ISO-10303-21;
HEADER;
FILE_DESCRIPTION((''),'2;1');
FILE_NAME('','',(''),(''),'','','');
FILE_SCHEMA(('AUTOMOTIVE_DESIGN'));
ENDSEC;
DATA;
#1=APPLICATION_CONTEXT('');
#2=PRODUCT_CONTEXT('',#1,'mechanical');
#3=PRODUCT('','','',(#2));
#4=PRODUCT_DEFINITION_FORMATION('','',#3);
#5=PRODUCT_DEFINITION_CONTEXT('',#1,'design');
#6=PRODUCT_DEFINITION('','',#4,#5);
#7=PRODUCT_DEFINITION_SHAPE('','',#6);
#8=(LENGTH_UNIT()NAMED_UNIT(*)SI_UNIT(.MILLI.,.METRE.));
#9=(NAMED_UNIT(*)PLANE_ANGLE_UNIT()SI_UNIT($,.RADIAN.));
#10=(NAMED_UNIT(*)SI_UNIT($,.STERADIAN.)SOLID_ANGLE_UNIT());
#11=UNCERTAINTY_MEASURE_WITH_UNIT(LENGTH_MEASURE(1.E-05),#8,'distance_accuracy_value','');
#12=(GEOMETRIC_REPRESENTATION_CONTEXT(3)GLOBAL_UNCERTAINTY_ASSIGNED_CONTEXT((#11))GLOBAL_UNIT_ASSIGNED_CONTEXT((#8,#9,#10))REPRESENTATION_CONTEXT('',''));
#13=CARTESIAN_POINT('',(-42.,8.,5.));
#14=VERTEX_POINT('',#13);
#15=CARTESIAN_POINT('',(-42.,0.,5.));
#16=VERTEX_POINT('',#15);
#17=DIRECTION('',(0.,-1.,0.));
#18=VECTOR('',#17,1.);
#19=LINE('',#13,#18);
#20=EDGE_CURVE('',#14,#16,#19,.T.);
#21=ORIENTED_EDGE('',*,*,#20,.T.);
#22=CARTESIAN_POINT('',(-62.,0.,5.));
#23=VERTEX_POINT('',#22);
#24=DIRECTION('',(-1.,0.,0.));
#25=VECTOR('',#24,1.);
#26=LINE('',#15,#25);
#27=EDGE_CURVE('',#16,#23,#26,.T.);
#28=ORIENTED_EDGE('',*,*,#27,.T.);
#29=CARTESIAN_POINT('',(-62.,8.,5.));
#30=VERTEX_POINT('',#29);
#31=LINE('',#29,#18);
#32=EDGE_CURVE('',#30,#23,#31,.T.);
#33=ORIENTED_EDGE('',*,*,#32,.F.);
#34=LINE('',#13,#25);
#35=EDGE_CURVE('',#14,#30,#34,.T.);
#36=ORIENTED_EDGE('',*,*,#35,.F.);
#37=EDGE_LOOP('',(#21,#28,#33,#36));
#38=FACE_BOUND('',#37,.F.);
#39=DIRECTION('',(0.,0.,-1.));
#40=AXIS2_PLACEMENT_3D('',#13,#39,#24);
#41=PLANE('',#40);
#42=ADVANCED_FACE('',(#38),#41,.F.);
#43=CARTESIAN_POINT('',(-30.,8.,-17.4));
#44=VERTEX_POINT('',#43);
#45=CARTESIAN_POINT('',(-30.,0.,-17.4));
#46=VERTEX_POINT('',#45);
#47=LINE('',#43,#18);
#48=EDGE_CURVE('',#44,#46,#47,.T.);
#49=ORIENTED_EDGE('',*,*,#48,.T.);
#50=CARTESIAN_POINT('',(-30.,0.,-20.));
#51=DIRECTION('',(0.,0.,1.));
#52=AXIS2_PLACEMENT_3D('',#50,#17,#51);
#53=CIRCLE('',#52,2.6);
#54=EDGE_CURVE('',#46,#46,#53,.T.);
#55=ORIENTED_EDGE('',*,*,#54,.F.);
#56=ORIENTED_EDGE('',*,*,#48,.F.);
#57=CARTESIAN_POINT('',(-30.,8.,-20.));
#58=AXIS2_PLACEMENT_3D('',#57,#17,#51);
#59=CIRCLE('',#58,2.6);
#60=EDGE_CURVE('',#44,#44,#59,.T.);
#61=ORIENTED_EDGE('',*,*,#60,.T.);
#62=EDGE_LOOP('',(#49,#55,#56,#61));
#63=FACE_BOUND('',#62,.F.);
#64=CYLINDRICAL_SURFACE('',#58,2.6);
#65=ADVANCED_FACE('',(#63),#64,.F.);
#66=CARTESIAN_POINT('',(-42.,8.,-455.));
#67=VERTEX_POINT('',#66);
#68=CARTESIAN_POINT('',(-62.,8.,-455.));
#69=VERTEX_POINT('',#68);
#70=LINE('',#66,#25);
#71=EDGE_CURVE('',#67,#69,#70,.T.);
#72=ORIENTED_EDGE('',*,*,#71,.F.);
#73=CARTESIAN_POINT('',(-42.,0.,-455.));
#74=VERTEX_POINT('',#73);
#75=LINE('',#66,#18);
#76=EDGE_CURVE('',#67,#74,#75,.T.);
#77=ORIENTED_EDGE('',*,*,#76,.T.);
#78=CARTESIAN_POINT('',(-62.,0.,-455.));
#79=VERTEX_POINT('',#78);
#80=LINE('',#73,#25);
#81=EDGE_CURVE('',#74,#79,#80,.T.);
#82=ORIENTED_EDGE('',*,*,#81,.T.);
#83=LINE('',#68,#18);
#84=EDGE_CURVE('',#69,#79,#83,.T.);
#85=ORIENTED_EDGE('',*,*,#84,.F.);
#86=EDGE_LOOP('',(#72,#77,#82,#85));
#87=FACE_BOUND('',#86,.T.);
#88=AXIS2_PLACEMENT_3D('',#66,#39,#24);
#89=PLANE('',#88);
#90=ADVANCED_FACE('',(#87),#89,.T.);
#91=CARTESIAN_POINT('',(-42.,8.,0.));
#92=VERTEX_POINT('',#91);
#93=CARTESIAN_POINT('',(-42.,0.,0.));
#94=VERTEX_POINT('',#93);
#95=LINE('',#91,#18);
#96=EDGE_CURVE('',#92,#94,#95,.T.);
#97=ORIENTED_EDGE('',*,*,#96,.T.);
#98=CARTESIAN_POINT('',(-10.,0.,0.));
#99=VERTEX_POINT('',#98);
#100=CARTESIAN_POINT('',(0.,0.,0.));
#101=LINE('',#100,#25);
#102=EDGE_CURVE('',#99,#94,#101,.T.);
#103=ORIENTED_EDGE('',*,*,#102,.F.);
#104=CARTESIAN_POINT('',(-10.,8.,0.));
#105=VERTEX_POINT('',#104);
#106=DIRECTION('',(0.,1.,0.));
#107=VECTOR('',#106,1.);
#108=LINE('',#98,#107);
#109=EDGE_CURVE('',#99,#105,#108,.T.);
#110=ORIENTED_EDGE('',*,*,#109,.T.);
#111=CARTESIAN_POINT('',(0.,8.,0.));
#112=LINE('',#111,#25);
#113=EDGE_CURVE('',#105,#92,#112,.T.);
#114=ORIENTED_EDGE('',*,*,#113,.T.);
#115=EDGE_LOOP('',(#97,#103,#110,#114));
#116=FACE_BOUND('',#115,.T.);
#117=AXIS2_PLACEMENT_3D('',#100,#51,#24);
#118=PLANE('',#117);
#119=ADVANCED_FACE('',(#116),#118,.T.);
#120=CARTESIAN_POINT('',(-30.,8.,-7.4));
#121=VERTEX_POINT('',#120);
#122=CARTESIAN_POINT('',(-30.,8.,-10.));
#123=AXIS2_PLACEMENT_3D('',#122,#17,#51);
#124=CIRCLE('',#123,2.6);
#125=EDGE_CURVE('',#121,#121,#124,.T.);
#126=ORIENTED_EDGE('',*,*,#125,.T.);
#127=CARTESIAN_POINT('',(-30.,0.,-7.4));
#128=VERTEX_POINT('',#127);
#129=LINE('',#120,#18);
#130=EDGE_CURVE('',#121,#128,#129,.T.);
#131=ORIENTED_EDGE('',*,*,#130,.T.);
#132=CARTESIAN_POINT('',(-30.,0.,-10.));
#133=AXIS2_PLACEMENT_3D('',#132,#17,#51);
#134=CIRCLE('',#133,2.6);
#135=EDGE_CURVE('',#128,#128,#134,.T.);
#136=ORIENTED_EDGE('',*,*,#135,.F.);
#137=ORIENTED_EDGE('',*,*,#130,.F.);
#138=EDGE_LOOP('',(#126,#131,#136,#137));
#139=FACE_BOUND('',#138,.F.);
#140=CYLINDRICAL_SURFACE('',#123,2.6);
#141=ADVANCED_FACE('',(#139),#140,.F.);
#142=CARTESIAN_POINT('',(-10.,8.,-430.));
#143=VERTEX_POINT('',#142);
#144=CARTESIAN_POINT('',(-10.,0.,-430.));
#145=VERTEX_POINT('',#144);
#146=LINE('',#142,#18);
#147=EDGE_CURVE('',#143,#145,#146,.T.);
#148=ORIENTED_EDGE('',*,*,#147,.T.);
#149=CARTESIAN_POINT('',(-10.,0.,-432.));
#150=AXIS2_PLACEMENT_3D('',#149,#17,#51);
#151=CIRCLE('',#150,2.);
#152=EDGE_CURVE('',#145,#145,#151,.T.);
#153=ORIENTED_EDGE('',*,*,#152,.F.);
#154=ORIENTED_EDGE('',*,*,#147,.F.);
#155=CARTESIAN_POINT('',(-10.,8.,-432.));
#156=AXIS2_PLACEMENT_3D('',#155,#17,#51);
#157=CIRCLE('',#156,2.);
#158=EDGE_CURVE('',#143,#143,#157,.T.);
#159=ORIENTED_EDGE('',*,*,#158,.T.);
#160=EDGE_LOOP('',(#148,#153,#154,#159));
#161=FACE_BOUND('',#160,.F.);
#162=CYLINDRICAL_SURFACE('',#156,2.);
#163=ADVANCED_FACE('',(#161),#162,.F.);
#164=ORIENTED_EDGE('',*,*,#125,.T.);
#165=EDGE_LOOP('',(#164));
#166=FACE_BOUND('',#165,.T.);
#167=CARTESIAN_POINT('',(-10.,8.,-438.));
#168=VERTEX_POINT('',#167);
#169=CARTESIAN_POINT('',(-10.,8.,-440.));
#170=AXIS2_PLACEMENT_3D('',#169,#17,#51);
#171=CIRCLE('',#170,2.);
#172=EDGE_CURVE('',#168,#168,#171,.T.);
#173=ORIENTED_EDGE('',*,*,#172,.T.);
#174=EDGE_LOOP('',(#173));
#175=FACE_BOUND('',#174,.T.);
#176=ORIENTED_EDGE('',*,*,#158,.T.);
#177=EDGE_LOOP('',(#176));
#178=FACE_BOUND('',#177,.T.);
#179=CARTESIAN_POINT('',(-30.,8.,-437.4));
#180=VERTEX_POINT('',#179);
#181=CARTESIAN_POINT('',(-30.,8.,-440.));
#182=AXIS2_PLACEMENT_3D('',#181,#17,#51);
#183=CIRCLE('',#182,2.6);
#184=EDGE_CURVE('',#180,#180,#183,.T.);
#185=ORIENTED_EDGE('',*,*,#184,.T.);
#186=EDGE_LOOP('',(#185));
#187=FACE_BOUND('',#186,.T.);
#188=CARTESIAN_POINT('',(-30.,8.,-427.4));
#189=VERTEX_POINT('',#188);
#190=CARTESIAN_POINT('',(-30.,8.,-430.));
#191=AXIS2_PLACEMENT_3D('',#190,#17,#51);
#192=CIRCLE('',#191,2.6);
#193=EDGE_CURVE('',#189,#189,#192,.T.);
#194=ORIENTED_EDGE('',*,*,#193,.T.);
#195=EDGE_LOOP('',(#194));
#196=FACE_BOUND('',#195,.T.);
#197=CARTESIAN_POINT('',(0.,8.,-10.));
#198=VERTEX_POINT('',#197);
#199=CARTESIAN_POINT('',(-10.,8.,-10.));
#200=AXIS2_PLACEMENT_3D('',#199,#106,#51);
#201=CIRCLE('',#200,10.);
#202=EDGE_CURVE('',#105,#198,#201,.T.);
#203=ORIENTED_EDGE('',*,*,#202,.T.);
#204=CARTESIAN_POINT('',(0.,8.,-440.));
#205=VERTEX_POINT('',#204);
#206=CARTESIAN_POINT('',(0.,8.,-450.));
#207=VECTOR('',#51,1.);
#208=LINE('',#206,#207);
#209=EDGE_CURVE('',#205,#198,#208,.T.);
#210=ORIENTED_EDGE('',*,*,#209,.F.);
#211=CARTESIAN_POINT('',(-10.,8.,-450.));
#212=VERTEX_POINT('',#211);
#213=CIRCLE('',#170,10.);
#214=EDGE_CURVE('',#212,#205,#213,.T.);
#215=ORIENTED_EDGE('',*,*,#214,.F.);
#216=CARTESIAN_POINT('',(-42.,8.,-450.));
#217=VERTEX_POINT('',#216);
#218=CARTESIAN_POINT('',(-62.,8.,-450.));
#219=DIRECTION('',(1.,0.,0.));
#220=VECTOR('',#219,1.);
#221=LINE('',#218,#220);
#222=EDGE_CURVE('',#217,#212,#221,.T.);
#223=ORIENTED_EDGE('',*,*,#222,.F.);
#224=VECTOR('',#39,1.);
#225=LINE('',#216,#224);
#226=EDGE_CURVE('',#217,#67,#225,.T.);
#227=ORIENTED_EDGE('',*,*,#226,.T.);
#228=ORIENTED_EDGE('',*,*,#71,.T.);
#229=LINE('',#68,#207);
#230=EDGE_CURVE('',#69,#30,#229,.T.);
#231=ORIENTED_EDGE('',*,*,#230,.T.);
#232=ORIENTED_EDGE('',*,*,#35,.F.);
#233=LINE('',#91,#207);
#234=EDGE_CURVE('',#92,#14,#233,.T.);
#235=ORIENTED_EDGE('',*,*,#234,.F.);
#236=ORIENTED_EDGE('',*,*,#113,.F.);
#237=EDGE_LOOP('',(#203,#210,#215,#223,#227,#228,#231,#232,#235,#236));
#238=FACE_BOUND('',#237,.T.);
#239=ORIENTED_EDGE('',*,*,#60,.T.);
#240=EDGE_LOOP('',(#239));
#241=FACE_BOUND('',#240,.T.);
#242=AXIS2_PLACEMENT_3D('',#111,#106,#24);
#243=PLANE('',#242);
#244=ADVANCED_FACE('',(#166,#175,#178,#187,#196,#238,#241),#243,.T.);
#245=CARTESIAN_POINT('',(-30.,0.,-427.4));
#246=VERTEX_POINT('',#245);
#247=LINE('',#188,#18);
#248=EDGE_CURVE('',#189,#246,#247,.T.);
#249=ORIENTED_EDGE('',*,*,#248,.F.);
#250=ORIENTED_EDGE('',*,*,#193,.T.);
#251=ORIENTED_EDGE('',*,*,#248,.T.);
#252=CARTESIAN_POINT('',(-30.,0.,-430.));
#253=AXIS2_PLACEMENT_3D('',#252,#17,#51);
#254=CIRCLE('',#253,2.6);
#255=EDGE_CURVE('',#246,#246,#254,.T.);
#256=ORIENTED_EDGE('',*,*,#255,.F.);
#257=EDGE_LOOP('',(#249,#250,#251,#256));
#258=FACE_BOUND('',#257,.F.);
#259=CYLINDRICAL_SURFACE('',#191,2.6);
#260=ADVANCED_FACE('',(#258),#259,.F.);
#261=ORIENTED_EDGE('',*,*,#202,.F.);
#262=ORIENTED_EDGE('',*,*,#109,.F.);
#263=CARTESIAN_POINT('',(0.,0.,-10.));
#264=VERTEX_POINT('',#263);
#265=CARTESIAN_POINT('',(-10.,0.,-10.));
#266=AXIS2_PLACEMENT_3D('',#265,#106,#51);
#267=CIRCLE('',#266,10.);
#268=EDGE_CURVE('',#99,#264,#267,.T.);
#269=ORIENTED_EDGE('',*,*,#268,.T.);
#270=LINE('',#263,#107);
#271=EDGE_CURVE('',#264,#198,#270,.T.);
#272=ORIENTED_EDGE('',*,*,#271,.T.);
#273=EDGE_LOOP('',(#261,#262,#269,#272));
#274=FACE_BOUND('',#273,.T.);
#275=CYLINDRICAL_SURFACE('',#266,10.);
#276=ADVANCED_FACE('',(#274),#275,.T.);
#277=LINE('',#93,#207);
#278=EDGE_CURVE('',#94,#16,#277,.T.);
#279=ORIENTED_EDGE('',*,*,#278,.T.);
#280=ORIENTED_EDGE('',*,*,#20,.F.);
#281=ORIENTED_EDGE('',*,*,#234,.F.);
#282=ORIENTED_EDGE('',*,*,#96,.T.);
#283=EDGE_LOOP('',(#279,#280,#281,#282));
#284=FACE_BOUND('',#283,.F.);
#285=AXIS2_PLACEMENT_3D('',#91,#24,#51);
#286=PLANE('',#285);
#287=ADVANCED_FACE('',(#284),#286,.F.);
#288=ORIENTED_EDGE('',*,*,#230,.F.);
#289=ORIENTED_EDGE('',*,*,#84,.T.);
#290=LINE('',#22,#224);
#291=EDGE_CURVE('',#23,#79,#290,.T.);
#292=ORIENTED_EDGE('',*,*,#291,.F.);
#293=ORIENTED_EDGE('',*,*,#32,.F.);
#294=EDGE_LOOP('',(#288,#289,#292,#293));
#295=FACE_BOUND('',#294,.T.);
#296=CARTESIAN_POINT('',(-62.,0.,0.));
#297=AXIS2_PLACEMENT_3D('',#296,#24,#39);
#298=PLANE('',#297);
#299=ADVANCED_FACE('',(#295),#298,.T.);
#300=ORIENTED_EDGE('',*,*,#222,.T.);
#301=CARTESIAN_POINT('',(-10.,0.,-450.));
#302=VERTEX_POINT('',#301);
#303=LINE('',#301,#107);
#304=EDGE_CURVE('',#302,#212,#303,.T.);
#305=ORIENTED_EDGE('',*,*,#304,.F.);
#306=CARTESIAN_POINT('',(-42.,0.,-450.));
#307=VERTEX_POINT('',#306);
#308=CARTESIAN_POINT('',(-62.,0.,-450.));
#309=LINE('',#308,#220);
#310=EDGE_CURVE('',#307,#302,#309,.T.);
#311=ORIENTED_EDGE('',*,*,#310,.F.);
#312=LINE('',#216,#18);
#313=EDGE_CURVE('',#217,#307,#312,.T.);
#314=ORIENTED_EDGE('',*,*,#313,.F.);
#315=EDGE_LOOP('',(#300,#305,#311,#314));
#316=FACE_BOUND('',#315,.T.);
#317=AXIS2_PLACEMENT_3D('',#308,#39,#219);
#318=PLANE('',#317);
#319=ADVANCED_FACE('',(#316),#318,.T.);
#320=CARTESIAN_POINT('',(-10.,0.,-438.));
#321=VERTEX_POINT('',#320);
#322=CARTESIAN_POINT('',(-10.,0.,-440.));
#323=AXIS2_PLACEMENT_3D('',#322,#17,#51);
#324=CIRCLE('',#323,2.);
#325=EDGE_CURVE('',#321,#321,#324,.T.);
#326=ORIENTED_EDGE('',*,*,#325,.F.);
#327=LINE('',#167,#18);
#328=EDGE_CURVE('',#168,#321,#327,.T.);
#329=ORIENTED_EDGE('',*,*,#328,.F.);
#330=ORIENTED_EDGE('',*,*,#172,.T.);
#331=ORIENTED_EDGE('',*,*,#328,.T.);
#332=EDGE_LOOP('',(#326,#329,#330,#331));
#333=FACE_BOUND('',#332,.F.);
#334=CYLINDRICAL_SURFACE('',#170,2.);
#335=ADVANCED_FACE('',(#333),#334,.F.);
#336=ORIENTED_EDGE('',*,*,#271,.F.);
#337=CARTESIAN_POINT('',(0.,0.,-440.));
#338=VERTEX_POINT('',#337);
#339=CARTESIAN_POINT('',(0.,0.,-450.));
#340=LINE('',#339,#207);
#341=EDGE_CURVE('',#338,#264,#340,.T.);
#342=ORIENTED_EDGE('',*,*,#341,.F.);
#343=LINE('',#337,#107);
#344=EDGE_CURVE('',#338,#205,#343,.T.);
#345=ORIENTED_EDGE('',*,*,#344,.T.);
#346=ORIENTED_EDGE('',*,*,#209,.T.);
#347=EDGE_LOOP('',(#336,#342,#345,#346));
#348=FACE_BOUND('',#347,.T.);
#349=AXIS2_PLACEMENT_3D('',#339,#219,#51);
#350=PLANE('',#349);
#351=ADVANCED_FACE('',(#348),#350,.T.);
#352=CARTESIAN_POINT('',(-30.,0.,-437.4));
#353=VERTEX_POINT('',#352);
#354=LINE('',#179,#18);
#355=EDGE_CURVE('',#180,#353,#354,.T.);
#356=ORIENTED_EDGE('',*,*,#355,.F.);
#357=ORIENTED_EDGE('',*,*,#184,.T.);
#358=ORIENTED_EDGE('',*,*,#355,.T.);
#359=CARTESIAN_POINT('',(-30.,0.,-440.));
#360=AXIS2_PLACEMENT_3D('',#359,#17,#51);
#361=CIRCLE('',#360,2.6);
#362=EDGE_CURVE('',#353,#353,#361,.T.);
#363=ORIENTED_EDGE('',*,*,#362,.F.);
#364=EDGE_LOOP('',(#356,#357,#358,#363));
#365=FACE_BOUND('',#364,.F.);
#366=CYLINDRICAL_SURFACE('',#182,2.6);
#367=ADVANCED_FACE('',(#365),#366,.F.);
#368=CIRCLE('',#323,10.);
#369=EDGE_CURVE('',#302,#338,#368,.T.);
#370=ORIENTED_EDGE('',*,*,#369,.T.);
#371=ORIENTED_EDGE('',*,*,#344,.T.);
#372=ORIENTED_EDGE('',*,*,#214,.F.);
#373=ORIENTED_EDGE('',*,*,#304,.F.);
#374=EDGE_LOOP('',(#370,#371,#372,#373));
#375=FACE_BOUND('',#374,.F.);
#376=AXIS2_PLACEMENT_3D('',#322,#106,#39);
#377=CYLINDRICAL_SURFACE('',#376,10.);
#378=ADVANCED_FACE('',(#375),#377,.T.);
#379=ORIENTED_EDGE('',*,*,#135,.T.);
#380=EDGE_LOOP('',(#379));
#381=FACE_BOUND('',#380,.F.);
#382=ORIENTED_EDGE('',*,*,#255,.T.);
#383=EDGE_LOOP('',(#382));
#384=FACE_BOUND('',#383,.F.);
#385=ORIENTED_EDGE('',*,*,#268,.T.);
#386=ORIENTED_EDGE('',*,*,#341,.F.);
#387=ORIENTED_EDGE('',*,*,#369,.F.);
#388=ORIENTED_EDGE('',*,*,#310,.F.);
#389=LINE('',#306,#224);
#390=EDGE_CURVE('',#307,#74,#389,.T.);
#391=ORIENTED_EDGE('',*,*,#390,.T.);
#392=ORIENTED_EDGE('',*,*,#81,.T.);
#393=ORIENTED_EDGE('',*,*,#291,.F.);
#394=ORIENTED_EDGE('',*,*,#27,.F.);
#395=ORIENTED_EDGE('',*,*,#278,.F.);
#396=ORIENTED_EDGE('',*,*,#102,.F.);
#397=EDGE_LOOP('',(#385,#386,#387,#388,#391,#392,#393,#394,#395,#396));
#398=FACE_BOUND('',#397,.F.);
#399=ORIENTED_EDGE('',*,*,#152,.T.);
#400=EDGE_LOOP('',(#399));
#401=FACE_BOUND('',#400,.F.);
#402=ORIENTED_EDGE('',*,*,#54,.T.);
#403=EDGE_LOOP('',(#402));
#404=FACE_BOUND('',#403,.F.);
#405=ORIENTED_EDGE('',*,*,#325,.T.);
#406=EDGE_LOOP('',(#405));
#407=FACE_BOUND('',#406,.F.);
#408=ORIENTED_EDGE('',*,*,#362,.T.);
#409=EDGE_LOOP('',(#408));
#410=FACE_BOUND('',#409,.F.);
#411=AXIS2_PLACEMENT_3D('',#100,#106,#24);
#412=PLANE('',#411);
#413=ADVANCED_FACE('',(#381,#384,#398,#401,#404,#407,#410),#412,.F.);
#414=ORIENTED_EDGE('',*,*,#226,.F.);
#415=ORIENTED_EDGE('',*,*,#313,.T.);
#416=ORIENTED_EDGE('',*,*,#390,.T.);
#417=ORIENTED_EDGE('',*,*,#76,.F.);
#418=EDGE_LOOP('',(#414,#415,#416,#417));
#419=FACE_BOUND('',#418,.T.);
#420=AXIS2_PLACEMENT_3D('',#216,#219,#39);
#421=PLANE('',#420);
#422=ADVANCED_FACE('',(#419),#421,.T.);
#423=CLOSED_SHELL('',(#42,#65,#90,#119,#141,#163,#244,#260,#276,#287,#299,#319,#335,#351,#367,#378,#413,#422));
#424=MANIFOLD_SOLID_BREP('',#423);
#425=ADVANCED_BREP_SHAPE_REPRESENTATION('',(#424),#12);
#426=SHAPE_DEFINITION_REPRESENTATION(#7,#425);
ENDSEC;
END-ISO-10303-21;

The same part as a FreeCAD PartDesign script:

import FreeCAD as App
import Part
import Sketcher


def edges_at(feature, points):
    """Names of the edges that pass closest to the given points."""
    edges = feature.Shape.Edges
    near = lambda p: min(range(len(edges)), key=lambda i: edges[i].distToShape(Part.Vertex(*p))[0])
    return sorted({f"Edge{near(p) + 1}" for p in points})

doc = App.newDocument("Part")
body = doc.addObject("PartDesign::Body", "Body")

# Sketch on XZ plane
sketch1 = body.newObject("Sketcher::SketchObject", "Sketch")
sketch1.AttachmentSupport = (doc.getObject("XZ_Plane"), [""])
sketch1.MapMode = "FlatFace"
sketch1.addGeometry([
    Part.LineSegment(App.Vector(-62, 0, 0), App.Vector(0, 0, 0)),
    Part.LineSegment(App.Vector(0, 0, 0), App.Vector(0, -450, 0)),
    Part.LineSegment(App.Vector(0, -450, 0), App.Vector(-62, -450, 0)),
    Part.LineSegment(App.Vector(-62, -450, 0), App.Vector(-62, 0, 0)),
], False)
sketch1.addConstraint([
    Sketcher.Constraint("Coincident", 0, 2, 1, 1),
    Sketcher.Constraint("Coincident", 1, 2, 2, 1),
    Sketcher.Constraint("Coincident", 2, 2, 3, 1),
    Sketcher.Constraint("Coincident", 3, 2, 0, 1),
    Sketcher.Constraint("Horizontal", 0),
    Sketcher.Constraint("Vertical", 1),
    Sketcher.Constraint("Horizontal", 2),
    Sketcher.Constraint("Vertical", 3),
    Sketcher.Constraint("Coincident", 0, 2, -1, 1),
    Sketcher.Constraint("DistanceX", 0, 1, 0, 2, 62.0),
    Sketcher.Constraint("DistanceY", 1, 2, 1, 1, 450.0),
])
pad1 = body.newObject("PartDesign::Pad", "Pad")
pad1.Profile = sketch1
pad1.Length = 8
pad1.Reversed = True
doc.recompute()

fillet = body.newObject("PartDesign::Fillet", "Fillet")
fillet.Base = (pad1, edges_at(pad1, [(0, 4, 0), (0, 4, -450)]))
fillet.Radius = 10

# Sketch on XZ plane
sketch2 = body.newObject("Sketcher::SketchObject", "Sketch001")
sketch2.AttachmentSupport = (doc.getObject("XZ_Plane"), [""])
sketch2.MapMode = "FlatFace"
sketch2.AttachmentOffset = App.Placement(App.Vector(0, 0, -8), App.Rotation())
sketch2.addGeometry([
    Part.Circle(App.Vector(-10, -432, 0), App.Vector(0, 0, 1), 2),
    Part.Circle(App.Vector(-10, -440, 0), App.Vector(0, 0, 1), 2),
], False)
sketch2.addConstraint([
    Sketcher.Constraint("Equal", 0, 1),
    Sketcher.Constraint("Vertical", 0, 3, 1, 3),
    Sketcher.Constraint("Diameter", 0, 4.0),
    Sketcher.Constraint("DistanceX", 0, 3, -1, 1, 10.0),
    Sketcher.Constraint("DistanceY", 0, 3, -1, 1, 432.0),
    Sketcher.Constraint("DistanceY", 1, 3, -1, 1, 440.0),
])
doc.recompute()
hole = body.newObject("PartDesign::Hole", "Hole")
hole.Profile = sketch2
hole.ThreadType = "None"
hole.Diameter = 4
hole.DepthType = "ThroughAll"
hole.Reversed = True

# Sketch on XZ plane
sketch3 = body.newObject("Sketcher::SketchObject", "Sketch002")
sketch3.AttachmentSupport = (doc.getObject("XZ_Plane"), [""])
sketch3.MapMode = "FlatFace"
sketch3.AttachmentOffset = App.Placement(App.Vector(0, 0, -8), App.Rotation())
sketch3.addGeometry([
    Part.Circle(App.Vector(-30, -20, 0), App.Vector(0, 0, 1), 2.6),
    Part.Circle(App.Vector(-30, -10, 0), App.Vector(0, 0, 1), 2.6),
    Part.Circle(App.Vector(-30, -440, 0), App.Vector(0, 0, 1), 2.6),
    Part.Circle(App.Vector(-30, -430, 0), App.Vector(0, 0, 1), 2.6),
], False)
sketch3.addConstraint([
    Sketcher.Constraint("Equal", 0, 1),
    Sketcher.Constraint("Equal", 1, 2),
    Sketcher.Constraint("Equal", 2, 3),
    Sketcher.Constraint("Vertical", 0, 3, 1, 3),
    Sketcher.Constraint("Vertical", 1, 3, 2, 3),
    Sketcher.Constraint("Vertical", 2, 3, 3, 3),
    Sketcher.Constraint("Diameter", 0, 5.2),
    Sketcher.Constraint("DistanceX", 0, 3, -1, 1, 30.0),
    Sketcher.Constraint("DistanceY", 0, 3, -1, 1, 20.0),
    Sketcher.Constraint("DistanceY", 1, 3, -1, 1, 10.0),
    Sketcher.Constraint("DistanceY", 2, 3, -1, 1, 440.0),
    Sketcher.Constraint("DistanceY", 3, 3, -1, 1, 430.0),
])
doc.recompute()
hole2 = body.newObject("PartDesign::Hole", "Hole001")
hole2.Profile = sketch3
hole2.ThreadType = "None"
hole2.Diameter = 5.2
hole2.DepthType = "ThroughAll"
hole2.Reversed = True

# Sketch on XZ plane
sketch4 = body.newObject("Sketcher::SketchObject", "Sketch003")
sketch4.AttachmentSupport = (doc.getObject("XZ_Plane"), [""])
sketch4.MapMode = "FlatFace"
sketch4.AttachmentOffset = App.Placement(App.Vector(0, 0, -8), App.Rotation())
sketch4.addGeometry([
    Part.LineSegment(App.Vector(-42, 0, 0), App.Vector(-62, 0, 0)),  # 0
    Part.LineSegment(App.Vector(-62, 0, 0), App.Vector(-62, 5, 0)),  # 1
    Part.LineSegment(App.Vector(-62, 5, 0), App.Vector(-42, 5, 0)),  # 2
    Part.LineSegment(App.Vector(-42, 5, 0), App.Vector(-42, 0, 0)),  # 3
    Part.LineSegment(App.Vector(-62, -455, 0), App.Vector(-62, -450, 0)),  # 4
    Part.LineSegment(App.Vector(-62, -450, 0), App.Vector(-42, -450, 0)),  # 5
    Part.LineSegment(App.Vector(-42, -450, 0), App.Vector(-42, -455, 0)),  # 6
    Part.LineSegment(App.Vector(-42, -455, 0), App.Vector(-62, -455, 0)),  # 7
], False)
sketch4.addConstraint([
    Sketcher.Constraint("Coincident", 0, 2, 1, 1),
    Sketcher.Constraint("Coincident", 1, 2, 2, 1),
    Sketcher.Constraint("Coincident", 2, 2, 3, 1),
    Sketcher.Constraint("Coincident", 3, 2, 0, 1),
    Sketcher.Constraint("Coincident", 4, 2, 5, 1),
    Sketcher.Constraint("Coincident", 5, 2, 6, 1),
    Sketcher.Constraint("Coincident", 6, 2, 7, 1),
    Sketcher.Constraint("Coincident", 7, 2, 4, 1),
    Sketcher.Constraint("Horizontal", 0),
    Sketcher.Constraint("Vertical", 1),
    Sketcher.Constraint("Horizontal", 2),
    Sketcher.Constraint("Vertical", 3),
    Sketcher.Constraint("Vertical", 4),
    Sketcher.Constraint("Horizontal", 5),
    Sketcher.Constraint("Vertical", 6),
    Sketcher.Constraint("Horizontal", 7),
    Sketcher.Constraint("PointOnObject", 0, 2, -1),
    Sketcher.Constraint("Vertical", 1, 2, 4, 2),
    Sketcher.Constraint("Vertical", 3, 2, 5, 2),
    Sketcher.Constraint("Equal", 3, 4),
    Sketcher.Constraint("DistanceX", 0, 2, 0, 1, 20.0),
    Sketcher.Constraint("DistanceY", 1, 1, 1, 2, 5.0),
    Sketcher.Constraint("DistanceX", 0, 2, -1, 1, 62.0),
    Sketcher.Constraint("DistanceY", 4, 2, -1, 1, 450.0),
])
pad2 = body.newObject("PartDesign::Pad", "Pad001")
pad2.Profile = sketch4
pad2.Length = 8

doc.recompute()
